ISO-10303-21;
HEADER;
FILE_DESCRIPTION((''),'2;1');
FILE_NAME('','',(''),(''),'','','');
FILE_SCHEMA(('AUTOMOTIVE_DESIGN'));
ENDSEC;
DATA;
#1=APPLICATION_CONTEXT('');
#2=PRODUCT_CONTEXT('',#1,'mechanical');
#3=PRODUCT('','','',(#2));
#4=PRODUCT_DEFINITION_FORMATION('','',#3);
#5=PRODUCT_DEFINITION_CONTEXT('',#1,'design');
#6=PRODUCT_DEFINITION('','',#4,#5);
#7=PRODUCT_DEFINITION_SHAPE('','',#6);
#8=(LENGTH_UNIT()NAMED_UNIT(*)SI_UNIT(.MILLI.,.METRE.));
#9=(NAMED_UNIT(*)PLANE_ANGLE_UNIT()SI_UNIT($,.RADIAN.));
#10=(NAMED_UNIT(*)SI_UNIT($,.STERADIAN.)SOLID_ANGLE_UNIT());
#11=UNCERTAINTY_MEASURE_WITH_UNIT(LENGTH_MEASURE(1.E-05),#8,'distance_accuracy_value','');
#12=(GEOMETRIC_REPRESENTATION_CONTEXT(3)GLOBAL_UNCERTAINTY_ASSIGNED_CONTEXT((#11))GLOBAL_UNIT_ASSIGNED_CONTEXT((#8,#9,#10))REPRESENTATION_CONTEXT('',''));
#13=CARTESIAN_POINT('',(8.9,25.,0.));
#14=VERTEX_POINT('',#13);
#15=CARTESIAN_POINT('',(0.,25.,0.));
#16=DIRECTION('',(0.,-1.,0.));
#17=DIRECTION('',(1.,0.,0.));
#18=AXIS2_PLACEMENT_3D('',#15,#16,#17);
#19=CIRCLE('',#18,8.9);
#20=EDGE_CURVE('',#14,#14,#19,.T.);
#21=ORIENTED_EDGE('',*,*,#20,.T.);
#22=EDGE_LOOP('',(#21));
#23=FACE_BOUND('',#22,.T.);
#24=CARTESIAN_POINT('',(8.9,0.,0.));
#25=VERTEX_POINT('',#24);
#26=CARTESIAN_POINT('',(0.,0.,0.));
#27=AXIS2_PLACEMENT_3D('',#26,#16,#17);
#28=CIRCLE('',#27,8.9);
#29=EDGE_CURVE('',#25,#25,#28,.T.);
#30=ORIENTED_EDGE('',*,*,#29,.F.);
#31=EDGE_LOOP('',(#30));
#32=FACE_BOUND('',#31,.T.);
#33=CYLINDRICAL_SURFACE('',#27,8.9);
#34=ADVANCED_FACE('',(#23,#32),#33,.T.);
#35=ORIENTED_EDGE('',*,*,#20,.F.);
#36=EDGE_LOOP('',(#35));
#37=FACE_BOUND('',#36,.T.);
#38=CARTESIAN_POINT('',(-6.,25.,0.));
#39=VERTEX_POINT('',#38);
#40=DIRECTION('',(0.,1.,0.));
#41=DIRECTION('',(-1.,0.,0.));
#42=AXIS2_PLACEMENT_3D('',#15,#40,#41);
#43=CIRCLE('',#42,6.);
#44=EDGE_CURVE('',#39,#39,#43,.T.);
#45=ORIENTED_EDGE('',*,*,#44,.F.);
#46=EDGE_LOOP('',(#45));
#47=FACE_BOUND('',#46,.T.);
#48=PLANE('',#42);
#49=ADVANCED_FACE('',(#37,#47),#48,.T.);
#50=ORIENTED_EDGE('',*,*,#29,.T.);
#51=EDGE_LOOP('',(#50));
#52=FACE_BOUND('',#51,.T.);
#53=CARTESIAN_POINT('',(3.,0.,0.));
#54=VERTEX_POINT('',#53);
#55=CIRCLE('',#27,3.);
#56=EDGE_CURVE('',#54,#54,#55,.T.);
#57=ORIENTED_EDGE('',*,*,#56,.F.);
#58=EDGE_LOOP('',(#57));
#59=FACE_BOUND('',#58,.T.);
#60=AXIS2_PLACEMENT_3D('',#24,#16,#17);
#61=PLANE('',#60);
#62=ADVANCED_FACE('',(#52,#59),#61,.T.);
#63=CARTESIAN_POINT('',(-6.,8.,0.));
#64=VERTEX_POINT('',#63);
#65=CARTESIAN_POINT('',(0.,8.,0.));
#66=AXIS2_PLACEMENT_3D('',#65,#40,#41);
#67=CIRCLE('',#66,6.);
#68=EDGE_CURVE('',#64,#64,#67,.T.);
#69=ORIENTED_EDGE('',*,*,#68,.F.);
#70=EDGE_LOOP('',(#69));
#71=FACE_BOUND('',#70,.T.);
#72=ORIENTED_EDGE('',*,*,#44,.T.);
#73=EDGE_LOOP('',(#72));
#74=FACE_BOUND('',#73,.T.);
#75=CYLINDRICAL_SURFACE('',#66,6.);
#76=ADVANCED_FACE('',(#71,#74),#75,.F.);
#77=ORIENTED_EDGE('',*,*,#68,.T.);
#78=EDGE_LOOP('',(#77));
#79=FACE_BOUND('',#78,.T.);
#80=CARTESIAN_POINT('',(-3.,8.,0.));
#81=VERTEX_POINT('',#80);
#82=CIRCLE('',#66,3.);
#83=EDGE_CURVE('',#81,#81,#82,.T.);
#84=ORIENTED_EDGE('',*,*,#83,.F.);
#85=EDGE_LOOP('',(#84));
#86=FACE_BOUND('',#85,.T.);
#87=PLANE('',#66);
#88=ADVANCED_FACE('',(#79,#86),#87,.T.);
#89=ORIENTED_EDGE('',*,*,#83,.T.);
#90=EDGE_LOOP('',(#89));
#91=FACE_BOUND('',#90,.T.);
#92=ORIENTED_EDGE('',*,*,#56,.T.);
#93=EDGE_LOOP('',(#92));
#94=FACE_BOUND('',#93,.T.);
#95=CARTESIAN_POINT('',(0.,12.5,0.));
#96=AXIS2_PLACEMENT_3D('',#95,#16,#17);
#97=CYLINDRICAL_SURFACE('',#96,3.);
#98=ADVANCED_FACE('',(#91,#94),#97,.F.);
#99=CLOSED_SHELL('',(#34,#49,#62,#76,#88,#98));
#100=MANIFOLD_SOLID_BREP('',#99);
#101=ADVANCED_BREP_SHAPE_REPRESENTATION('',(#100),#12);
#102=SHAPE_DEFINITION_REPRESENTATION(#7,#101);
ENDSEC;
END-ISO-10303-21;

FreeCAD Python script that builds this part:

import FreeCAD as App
import Part
import Sketcher
from FreeCAD import Vector
Q = App.Units.Quantity

doc = App.newDocument("Part")
body = doc.addObject("PartDesign::Body", "Body")

# Sketch on XY plane
sketch1 = doc.addObject("Sketcher::SketchObject", "Sketch")
body.addObject(sketch1)
sketch1.AttachmentSupport = (doc.XY_Plane, [""])
sketch1.MapMode = "FlatFace"
sketch1.addGeometry(Part.LineSegment(Vector(0, 25, 0), Vector(0, 0, 0)), False)
sketch1.addGeometry(Part.LineSegment(Vector(0, 0, 0), Vector(8.9, 0, 0)), False)
sketch1.addGeometry(Part.LineSegment(Vector(8.9, 0, 0), Vector(8.9, 25, 0)), False)
sketch1.addGeometry(Part.LineSegment(Vector(8.9, 25, 0), Vector(0, 25, 0)), False)
sketch1.addConstraint(Sketcher.Constraint("Coincident", 0, 2, 1, 1))
sketch1.addConstraint(Sketcher.Constraint("Coincident", 1, 2, 2, 1))
sketch1.addConstraint(Sketcher.Constraint("Coincident", 2, 2, 3, 1))
sketch1.addConstraint(Sketcher.Constraint("Coincident", 3, 2, 0, 1))
sketch1.addConstraint(Sketcher.Constraint("Vertical", 0))
sketch1.addConstraint(Sketcher.Constraint("Horizontal", 1))
sketch1.addConstraint(Sketcher.Constraint("Vertical", 2))
sketch1.addConstraint(Sketcher.Constraint("Horizontal", 3))
sketch1.addConstraint(Sketcher.Constraint("Coincident", 0, 2, -1, 1))
sketch1.addConstraint(Sketcher.Constraint("DistanceY", 0, 2, 0, 1, Q("25 mm")))
sketch1.addConstraint(Sketcher.Constraint("DistanceX", 1, 1, 1, 2, Q("8.9 mm")))
revolution = doc.addObject("PartDesign::Revolution", "Revolution")
body.addObject(revolution)
revolution.Profile = sketch1
revolution.ReferenceAxis = (sketch1, ["V_Axis"])
revolution.Angle = 360

# Sketch on XZ plane
sketch2 = doc.addObject("Sketcher::SketchObject", "Sketch001")
body.addObject(sketch2)
sketch2.AttachmentSupport = (doc.XZ_Plane, [""])
sketch2.MapMode = "FlatFace"
sketch2.AttachmentOffset = App.Placement(Vector(0, 0, -25), App.Rotation())
sketch2.addGeometry(Part.Circle(Vector(0, 0, 0), Vector(0, 0, 1), 6), False)
sketch2.addConstraint(Sketcher.Constraint("Coincident", 0, 3, -1, 1))
sketch2.addConstraint(Sketcher.Constraint("Diameter", 0, Q("12 mm")))
pocket1 = doc.addObject("PartDesign::Pocket", "Pocket")
body.addObject(pocket1)
pocket1.Profile = sketch2
pocket1.Length = 17
pocket1.Reversed = True

# Sketch on XZ plane
sketch3 = doc.addObject("Sketcher::SketchObject", "Sketch002")
body.addObject(sketch3)
sketch3.AttachmentSupport = (doc.XZ_Plane, [""])
sketch3.MapMode = "FlatFace"
sketch3.addGeometry(Part.Circle(Vector(0, 0, 0), Vector(0, 0, 1), 3), False)
sketch3.addConstraint(Sketcher.Constraint("Coincident", 0, 3, -1, 1))
sketch3.addConstraint(Sketcher.Constraint("Diameter", 0, Q("6 mm")))
pocket2 = doc.addObject("PartDesign::Pocket", "Pocket001")
body.addObject(pocket2)
pocket2.Profile = sketch3
pocket2.Length = 12.5

doc.recompute()
